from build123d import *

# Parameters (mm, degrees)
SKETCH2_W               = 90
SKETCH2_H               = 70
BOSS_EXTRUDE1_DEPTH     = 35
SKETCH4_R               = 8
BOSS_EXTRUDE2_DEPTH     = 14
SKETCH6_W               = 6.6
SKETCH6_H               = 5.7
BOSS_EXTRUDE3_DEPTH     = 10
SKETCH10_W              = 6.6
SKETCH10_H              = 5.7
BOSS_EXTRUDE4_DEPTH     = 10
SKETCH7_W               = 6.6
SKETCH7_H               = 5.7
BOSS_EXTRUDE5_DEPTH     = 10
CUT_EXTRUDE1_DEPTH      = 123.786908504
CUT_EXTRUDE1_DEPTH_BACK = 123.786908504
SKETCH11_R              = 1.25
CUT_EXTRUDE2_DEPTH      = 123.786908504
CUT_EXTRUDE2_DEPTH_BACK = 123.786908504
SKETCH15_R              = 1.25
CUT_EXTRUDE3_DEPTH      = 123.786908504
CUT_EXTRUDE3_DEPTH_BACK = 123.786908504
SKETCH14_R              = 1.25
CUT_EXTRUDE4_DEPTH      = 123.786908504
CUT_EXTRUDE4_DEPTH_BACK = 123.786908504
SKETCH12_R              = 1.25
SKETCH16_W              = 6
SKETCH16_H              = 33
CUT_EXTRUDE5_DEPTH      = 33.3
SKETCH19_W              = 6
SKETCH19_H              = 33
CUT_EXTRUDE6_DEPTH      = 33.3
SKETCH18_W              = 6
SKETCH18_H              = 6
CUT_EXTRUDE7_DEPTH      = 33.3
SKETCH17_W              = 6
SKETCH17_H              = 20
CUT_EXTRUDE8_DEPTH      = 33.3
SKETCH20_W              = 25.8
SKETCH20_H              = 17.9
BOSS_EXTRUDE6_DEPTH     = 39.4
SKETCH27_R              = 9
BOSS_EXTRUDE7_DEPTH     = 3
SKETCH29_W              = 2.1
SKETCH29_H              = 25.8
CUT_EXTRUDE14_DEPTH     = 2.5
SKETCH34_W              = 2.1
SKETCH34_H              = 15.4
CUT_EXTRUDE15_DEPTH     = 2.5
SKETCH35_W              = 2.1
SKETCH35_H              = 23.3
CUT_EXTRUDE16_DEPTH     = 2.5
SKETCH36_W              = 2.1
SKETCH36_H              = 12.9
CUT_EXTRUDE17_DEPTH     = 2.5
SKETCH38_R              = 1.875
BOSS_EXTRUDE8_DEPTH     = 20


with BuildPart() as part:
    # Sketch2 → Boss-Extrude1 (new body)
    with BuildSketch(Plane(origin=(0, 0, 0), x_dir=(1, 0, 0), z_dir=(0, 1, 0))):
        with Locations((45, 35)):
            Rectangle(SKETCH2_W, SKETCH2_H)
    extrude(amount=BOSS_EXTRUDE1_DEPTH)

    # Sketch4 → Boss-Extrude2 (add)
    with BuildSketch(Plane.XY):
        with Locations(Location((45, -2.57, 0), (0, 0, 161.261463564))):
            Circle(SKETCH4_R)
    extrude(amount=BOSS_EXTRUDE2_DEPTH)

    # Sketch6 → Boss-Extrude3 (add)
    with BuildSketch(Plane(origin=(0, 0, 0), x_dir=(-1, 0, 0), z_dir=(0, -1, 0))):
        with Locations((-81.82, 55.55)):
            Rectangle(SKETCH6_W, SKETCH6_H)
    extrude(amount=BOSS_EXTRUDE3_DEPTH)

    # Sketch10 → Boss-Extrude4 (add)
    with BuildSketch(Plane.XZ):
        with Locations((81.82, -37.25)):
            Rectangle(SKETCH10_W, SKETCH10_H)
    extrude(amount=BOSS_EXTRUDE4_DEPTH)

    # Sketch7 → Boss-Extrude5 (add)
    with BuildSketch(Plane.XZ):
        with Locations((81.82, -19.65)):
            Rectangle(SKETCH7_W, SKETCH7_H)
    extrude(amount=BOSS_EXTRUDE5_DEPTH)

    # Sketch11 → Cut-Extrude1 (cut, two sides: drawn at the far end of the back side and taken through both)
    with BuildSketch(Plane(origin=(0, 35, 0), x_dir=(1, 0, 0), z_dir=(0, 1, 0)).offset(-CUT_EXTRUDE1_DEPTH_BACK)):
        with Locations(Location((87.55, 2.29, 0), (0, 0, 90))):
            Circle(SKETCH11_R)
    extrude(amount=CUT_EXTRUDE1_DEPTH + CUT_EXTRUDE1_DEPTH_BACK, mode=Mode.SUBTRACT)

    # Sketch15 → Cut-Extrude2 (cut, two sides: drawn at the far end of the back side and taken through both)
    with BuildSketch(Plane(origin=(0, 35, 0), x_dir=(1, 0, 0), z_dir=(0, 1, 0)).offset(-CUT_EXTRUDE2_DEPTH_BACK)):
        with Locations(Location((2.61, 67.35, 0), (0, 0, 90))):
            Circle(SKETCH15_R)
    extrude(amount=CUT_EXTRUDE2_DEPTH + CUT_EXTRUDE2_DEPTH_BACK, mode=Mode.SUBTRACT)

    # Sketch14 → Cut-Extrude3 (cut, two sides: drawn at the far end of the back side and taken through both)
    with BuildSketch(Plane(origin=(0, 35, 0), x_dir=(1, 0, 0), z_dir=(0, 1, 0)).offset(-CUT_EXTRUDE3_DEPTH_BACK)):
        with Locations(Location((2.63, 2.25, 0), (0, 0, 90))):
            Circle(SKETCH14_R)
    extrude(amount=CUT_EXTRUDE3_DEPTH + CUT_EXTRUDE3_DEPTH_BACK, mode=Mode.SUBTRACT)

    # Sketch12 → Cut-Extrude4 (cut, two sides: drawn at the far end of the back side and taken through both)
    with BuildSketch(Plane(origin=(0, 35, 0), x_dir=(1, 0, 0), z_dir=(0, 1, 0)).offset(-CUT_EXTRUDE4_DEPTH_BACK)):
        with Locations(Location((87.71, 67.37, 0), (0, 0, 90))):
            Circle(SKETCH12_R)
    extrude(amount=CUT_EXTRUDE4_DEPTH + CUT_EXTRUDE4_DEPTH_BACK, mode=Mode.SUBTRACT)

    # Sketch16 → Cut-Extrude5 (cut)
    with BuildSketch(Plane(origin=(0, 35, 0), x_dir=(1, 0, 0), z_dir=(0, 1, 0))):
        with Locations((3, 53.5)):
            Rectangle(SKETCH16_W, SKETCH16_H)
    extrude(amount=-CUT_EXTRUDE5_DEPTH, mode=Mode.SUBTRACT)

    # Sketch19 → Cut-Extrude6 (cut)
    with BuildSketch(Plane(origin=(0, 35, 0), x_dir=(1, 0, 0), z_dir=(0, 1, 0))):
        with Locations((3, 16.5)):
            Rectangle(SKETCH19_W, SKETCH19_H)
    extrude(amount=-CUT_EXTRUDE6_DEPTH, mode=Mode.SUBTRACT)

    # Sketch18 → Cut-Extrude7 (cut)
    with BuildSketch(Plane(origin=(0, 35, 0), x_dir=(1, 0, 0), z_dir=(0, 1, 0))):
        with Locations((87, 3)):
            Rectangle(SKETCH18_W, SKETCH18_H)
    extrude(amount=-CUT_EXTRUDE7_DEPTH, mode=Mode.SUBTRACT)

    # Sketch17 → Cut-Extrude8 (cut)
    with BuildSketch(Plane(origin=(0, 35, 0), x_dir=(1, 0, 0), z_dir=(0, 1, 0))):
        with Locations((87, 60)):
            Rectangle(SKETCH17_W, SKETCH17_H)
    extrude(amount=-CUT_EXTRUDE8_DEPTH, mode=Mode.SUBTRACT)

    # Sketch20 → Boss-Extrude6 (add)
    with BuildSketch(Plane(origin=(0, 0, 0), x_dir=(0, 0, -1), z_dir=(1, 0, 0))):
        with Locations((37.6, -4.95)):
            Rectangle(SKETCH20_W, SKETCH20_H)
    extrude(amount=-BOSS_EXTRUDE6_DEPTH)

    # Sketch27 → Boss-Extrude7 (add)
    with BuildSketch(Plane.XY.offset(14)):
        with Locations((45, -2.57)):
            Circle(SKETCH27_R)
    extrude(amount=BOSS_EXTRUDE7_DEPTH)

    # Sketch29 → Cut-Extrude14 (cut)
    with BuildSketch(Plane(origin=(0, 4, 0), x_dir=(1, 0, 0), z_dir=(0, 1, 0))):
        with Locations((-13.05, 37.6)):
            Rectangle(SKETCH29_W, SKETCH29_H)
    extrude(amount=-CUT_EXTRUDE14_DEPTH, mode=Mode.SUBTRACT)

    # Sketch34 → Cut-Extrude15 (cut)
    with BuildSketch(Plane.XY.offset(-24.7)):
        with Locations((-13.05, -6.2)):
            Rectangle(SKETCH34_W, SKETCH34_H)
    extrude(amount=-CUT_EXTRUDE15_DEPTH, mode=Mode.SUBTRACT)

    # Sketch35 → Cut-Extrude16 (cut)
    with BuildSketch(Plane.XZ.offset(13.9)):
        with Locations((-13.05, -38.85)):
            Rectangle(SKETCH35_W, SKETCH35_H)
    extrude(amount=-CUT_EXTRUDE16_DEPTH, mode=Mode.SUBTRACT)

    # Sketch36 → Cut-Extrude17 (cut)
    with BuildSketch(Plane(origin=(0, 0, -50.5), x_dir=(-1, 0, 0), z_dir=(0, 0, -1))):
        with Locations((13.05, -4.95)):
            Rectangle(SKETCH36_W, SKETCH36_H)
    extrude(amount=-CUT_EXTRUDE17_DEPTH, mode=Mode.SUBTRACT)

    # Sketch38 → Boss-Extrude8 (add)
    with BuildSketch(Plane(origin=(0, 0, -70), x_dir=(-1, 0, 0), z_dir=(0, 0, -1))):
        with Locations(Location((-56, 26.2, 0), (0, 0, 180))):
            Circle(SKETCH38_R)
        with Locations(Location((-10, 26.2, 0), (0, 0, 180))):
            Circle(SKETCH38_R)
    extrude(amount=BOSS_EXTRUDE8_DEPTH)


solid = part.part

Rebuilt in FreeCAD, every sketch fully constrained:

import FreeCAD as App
import Part
import Sketcher


def add_polygon(sketch, points):
    """Adds a closed chain of lines whose ends are joined by coincident constraints."""
    first, n = sketch.GeometryCount, len(points)
    for a, b in zip(points, points[1:] + points[:1]):
        sketch.addGeometry(Part.LineSegment(App.Vector(*a, 0), App.Vector(*b, 0)), False)
    for i in range(n):
        sketch.addConstraint(Sketcher.Constraint("Coincident", first + i, 2, first + (i + 1) % n, 1))

doc = App.newDocument("Part")
body = doc.addObject("PartDesign::Body", "Body")

# Sketch on XZ plane
sketch1 = body.newObject("Sketcher::SketchObject", "Sketch")
sketch1.AttachmentSupport = (doc.getObject("XZ_Plane"), [""])
sketch1.MapMode = "FlatFace"
add_polygon(sketch1, [(0, -70), (0, 0), (90, 0), (90, -70)])  # lines 0-3
sketch1.addConstraint([
    Sketcher.Constraint("Vertical", 0),
    Sketcher.Constraint("Horizontal", 1),
    Sketcher.Constraint("Vertical", 2),
    Sketcher.Constraint("Horizontal", 3),
    Sketcher.Constraint("Coincident", 0, 2, -1, 1),
    Sketcher.Constraint("DistanceX", 1, 1, 1, 2, 90.0),
    Sketcher.Constraint("DistanceY", 0, 1, 0, 2, 70.0),
])
pad1 = body.newObject("PartDesign::Pad", "Pad")
pad1.Profile = sketch1
pad1.Length = 35
pad1.Reversed = True

# Sketch on XY plane
sketch2 = body.newObject("Sketcher::SketchObject", "Sketch001")
sketch2.AttachmentSupport = (doc.getObject("XY_Plane"), [""])
sketch2.MapMode = "FlatFace"
sketch2.addGeometry(Part.Circle(App.Vector(45, -3, 0), App.Vector(0, 0, 1), 8), False)
sketch2.addConstraint([
    Sketcher.Constraint("Diameter", 0, 16.0),
    Sketcher.Constraint("DistanceX", -1, 1, 0, 3, 45.0),
    Sketcher.Constraint("DistanceY", 0, 3, -1, 1, 2.57),
])
pad2 = body.newObject("PartDesign::Pad", "Pad001")
pad2.Profile = sketch2
pad2.Length = 14

# Sketch on XZ plane
sketch3 = body.newObject("Sketcher::SketchObject", "Sketch002")
sketch3.AttachmentSupport = (doc.getObject("XZ_Plane"), [""])
sketch3.MapMode = "FlatFace"
add_polygon(sketch3, [(85, -58), (85, -53), (79, -53), (79, -58)])  # lines 0-3
sketch3.addConstraint([
    Sketcher.Constraint("Vertical", 0),
    Sketcher.Constraint("Horizontal", 1),
    Sketcher.Constraint("Vertical", 2),
    Sketcher.Constraint("Horizontal", 3),
    Sketcher.Constraint("DistanceX", 1, 2, 1, 1, 6.6),
    Sketcher.Constraint("DistanceY", 0, 1, 0, 2, 5.7),
    Sketcher.Constraint("DistanceY", 0, 2, -1, 1, 52.7),
    Sketcher.Constraint("DistanceX", -1, 1, 0, 2, 85.12),
])
pad3 = body.newObject("PartDesign::Pad", "Pad002")
pad3.Profile = sketch3
pad3.Length = 10

# Sketch on XZ plane
sketch4 = body.newObject("Sketcher::SketchObject", "Sketch003")
sketch4.AttachmentSupport = (doc.getObject("XZ_Plane"), [""])
sketch4.MapMode = "FlatFace"
add_polygon(sketch4, [(79, -34), (79, -40), (85, -40), (85, -34)])  # lines 0-3
sketch4.addConstraint([
    Sketcher.Constraint("Vertical", 0),
    Sketcher.Constraint("Horizontal", 1),
    Sketcher.Constraint("Vertical", 2),
    Sketcher.Constraint("Horizontal", 3),
    Sketcher.Constraint("DistanceX", 1, 1, 1, 2, 6.6),
    Sketcher.Constraint("DistanceY", 0, 2, 0, 1, 5.7),
    Sketcher.Constraint("DistanceY", 0, 2, -1, 1, 40.1),
    Sketcher.Constraint("DistanceX", -1, 1, 0, 2, 78.52),
])
pad4 = body.newObject("PartDesign::Pad", "Pad003")
pad4.Profile = sketch4
pad4.Length = 10

# Sketch on XZ plane
sketch5 = body.newObject("Sketcher::SketchObject", "Sketch004")
sketch5.AttachmentSupport = (doc.getObject("XZ_Plane"), [""])
sketch5.MapMode = "FlatFace"
add_polygon(sketch5, [(79, -17), (79, -22), (85, -22), (85, -17)])  # lines 0-3
sketch5.addConstraint([
    Sketcher.Constraint("Vertical", 0),
    Sketcher.Constraint("Horizontal", 1),
    Sketcher.Constraint("Vertical", 2),
    Sketcher.Constraint("Horizontal", 3),
    Sketcher.Constraint("DistanceX", 1, 1, 1, 2, 6.6),
    Sketcher.Constraint("DistanceY", 0, 2, 0, 1, 5.7),
    Sketcher.Constraint("DistanceY", 0, 2, -1, 1, 22.5),
    Sketcher.Constraint("DistanceX", -1, 1, 0, 2, 78.52),
])
pad5 = body.newObject("PartDesign::Pad", "Pad004")
pad5.Profile = sketch5
pad5.Length = 10

# Sketch on XZ plane
sketch6 = body.newObject("Sketcher::SketchObject", "Sketch005")
sketch6.AttachmentSupport = (doc.getObject("XZ_Plane"), [""])
sketch6.MapMode = "FlatFace"
sketch6.AttachmentOffset = App.Placement(App.Vector(0, 0, -35), App.Rotation())
sketch6.addGeometry(Part.Circle(App.Vector(87.5, -2.3, 0), App.Vector(0, 0, 1), 1.2), False)
sketch6.addConstraint([
    Sketcher.Constraint("Diameter", 0, 2.5),
    Sketcher.Constraint("DistanceX", -1, 1, 0, 3, 87.55),
    Sketcher.Constraint("DistanceY", 0, 3, -1, 1, 2.29),
])
pocket1 = body.newObject("PartDesign::Pocket", "Pocket")
pocket1.Profile = sketch6
pocket1.Type = "ThroughAll"
pocket1.Midplane = True

# Sketch on XZ plane
sketch7 = body.newObject("Sketcher::SketchObject", "Sketch006")
sketch7.AttachmentSupport = (doc.getObject("XZ_Plane"), [""])
sketch7.MapMode = "FlatFace"
sketch7.AttachmentOffset = App.Placement(App.Vector(0, 0, -35), App.Rotation())
sketch7.addGeometry(Part.Circle(App.Vector(2.6, -67.3, 0), App.Vector(0, 0, 1), 1.2), False)
sketch7.addConstraint([
    Sketcher.Constraint("Diameter", 0, 2.5),
    Sketcher.Constraint("DistanceX", -1, 1, 0, 3, 2.61),
    Sketcher.Constraint("DistanceY", 0, 3, -1, 1, 67.35),
])
pocket2 = body.newObject("PartDesign::Pocket", "Pocket001")
pocket2.Profile = sketch7
pocket2.Type = "ThroughAll"
pocket2.Midplane = True

# Sketch on XZ plane
sketch8 = body.newObject("Sketcher::SketchObject", "Sketch007")
sketch8.AttachmentSupport = (doc.getObject("XZ_Plane"), [""])
sketch8.MapMode = "FlatFace"
sketch8.AttachmentOffset = App.Placement(App.Vector(0, 0, -35), App.Rotation())
sketch8.addGeometry(Part.Circle(App.Vector(2.6, -2.2, 0), App.Vector(0, 0, 1), 1.2), False)
sketch8.addConstraint([
    Sketcher.Constraint("Diameter", 0, 2.5),
    Sketcher.Constraint("DistanceX", -1, 1, 0, 3, 2.63),
    Sketcher.Constraint("DistanceY", 0, 3, -1, 1, 2.25),
])
pocket3 = body.newObject("PartDesign::Pocket", "Pocket002")
pocket3.Profile = sketch8
pocket3.Type = "ThroughAll"
pocket3.Midplane = True

# Sketch on XZ plane
sketch9 = body.newObject("Sketcher::SketchObject", "Sketch008")
sketch9.AttachmentSupport = (doc.getObject("XZ_Plane"), [""])
sketch9.MapMode = "FlatFace"
sketch9.AttachmentOffset = App.Placement(App.Vector(0, 0, -35), App.Rotation())
sketch9.addGeometry(Part.Circle(App.Vector(87.7, -67.4, 0), App.Vector(0, 0, 1), 1.2), False)
sketch9.addConstraint([
    Sketcher.Constraint("Diameter", 0, 2.5),
    Sketcher.Constraint("DistanceX", -1, 1, 0, 3, 87.71),
    Sketcher.Constraint("DistanceY", 0, 3, -1, 1, 67.37),
])
pocket4 = body.newObject("PartDesign::Pocket", "Pocket003")
pocket4.Profile = sketch9
pocket4.Type = "ThroughAll"
pocket4.Midplane = True

# Sketch on XZ plane
sketch10 = body.newObject("Sketcher::SketchObject", "Sketch009")
sketch10.AttachmentSupport = (doc.getObject("XZ_Plane"), [""])
sketch10.MapMode = "FlatFace"
sketch10.AttachmentOffset = App.Placement(App.Vector(0, 0, -35), App.Rotation())
add_polygon(sketch10, [(0, -70), (0, -37), (6, -37), (6, -70)])  # lines 0-3
sketch10.addConstraint([
    Sketcher.Constraint("Vertical", 0),
    Sketcher.Constraint("Horizontal", 1),
    Sketcher.Constraint("Vertical", 2),
    Sketcher.Constraint("Horizontal", 3),
    Sketcher.Constraint("PointOnObject", 0, 2, -2),
    Sketcher.Constraint("DistanceX", 1, 1, 1, 2, 6.0),
    Sketcher.Constraint("DistanceY", 0, 1, 0, 2, 33.0),
    Sketcher.Constraint("DistanceY", 0, 2, -1, 1, 37.0),
])
pocket5 = body.newObject("PartDesign::Pocket", "Pocket004")
pocket5.Profile = sketch10
pocket5.Length = 33.3
pocket5.Reversed = True

# Sketch on XZ plane
sketch11 = body.newObject("Sketcher::SketchObject", "Sketch010")
sketch11.AttachmentSupport = (doc.getObject("XZ_Plane"), [""])
sketch11.MapMode = "FlatFace"
sketch11.AttachmentOffset = App.Placement(App.Vector(0, 0, -35), App.Rotation())
add_polygon(sketch11, [(0, -33), (0, 0), (6, 0), (6, -33)])  # lines 0-3
sketch11.addConstraint([
    Sketcher.Constraint("Vertical", 0),
    Sketcher.Constraint("Horizontal", 1),
    Sketcher.Constraint("Vertical", 2),
    Sketcher.Constraint("Horizontal", 3),
    Sketcher.Constraint("Coincident", 0, 2, -1, 1),
    Sketcher.Constraint("DistanceX", 1, 1, 1, 2, 6.0),
    Sketcher.Constraint("DistanceY", 0, 1, 0, 2, 33.0),
])
pocket6 = body.newObject("PartDesign::Pocket", "Pocket005")
pocket6.Profile = sketch11
pocket6.Length = 33.3
pocket6.Reversed = True

# Sketch on XZ plane
sketch12 = body.newObject("Sketcher::SketchObject", "Sketch011")
sketch12.AttachmentSupport = (doc.getObject("XZ_Plane"), [""])
sketch12.MapMode = "FlatFace"
sketch12.AttachmentOffset = App.Placement(App.Vector(0, 0, -35), App.Rotation())
add_polygon(sketch12, [(84, -6), (84, 0), (90, 0), (90, -6)])  # lines 0-3
sketch12.addConstraint([
    Sketcher.Constraint("Vertical", 0),
    Sketcher.Constraint("Horizontal", 1),
    Sketcher.Constraint("Vertical", 2),
    Sketcher.Constraint("Horizontal", 3),
    Sketcher.Constraint("PointOnObject", 0, 2, -1),
    Sketcher.Constraint("Equal", 3, 0),
    Sketcher.Constraint("DistanceX", 1, 1, 1, 2, 6.0),
    Sketcher.Constraint("DistanceX", -1, 1, 0, 2, 84.0),
])
pocket7 = body.newObject("PartDesign::Pocket", "Pocket006")
pocket7.Profile = sketch12
pocket7.Length = 33.3
pocket7.Reversed = True

# Sketch on XZ plane
sketch13 = body.newObject("Sketcher::SketchObject", "Sketch012")
sketch13.AttachmentSupport = (doc.getObject("XZ_Plane"), [""])
sketch13.MapMode = "FlatFace"
sketch13.AttachmentOffset = App.Placement(App.Vector(0, 0, -35), App.Rotation())
add_polygon(sketch13, [(84, -70), (84, -50), (90, -50), (90, -70)])  # lines 0-3
sketch13.addConstraint([
    Sketcher.Constraint("Vertical", 0),
    Sketcher.Constraint("Horizontal", 1),
    Sketcher.Constraint("Vertical", 2),
    Sketcher.Constraint("Horizontal", 3),
    Sketcher.Constraint("DistanceX", 1, 1, 1, 2, 6.0),
    Sketcher.Constraint("DistanceY", 0, 1, 0, 2, 20.0),
    Sketcher.Constraint("DistanceX", -1, 1, 0, 2, 84.0),
    Sketcher.Constraint("DistanceY", 0, 2, -1, 1, 50.0),
])
pocket8 = body.newObject("PartDesign::Pocket", "Pocket007")
pocket8.Profile = sketch13
pocket8.Length = 33.3
pocket8.Reversed = True

# Sketch on YZ plane
sketch14 = body.newObject("Sketcher::SketchObject", "Sketch013")
sketch14.AttachmentSupport = (doc.getObject("YZ_Plane"), [""])
sketch14.MapMode = "FlatFace"
add_polygon(sketch14, [(4, -25), (-14, -25), (-14, -50), (4, -50)])  # lines 0-3
sketch14.addConstraint([
    Sketcher.Constraint("Horizontal", 0),
    Sketcher.Constraint("Vertical", 1),
    Sketcher.Constraint("Horizontal", 2),
    Sketcher.Constraint("Vertical", 3),
    Sketcher.Constraint("DistanceX", 0, 2, 0, 1, 17.9),
    Sketcher.Constraint("DistanceY", 1, 2, 1, 1, 25.8),
    Sketcher.Constraint("DistanceX", -1, 1, 2, 2, 4.0),
    Sketcher.Constraint("DistanceY", 0, 2, -1, 1, 24.7),
])
pad6 = body.newObject("PartDesign::Pad", "Pad005")
pad6.Profile = sketch14
pad6.Length = 39.4
pad6.Reversed = True

# Sketch on XY plane
sketch15 = body.newObject("Sketcher::SketchObject", "Sketch014")
sketch15.AttachmentSupport = (doc.getObject("XY_Plane"), [""])
sketch15.MapMode = "FlatFace"
sketch15.AttachmentOffset = App.Placement(App.Vector(0, 0, 14), App.Rotation())
sketch15.addGeometry(Part.Circle(App.Vector(45, -3, 0), App.Vector(0, 0, 1), 9), False)
sketch15.addConstraint([
    Sketcher.Constraint("Diameter", 0, 18.0),
    Sketcher.Constraint("DistanceX", -1, 1, 0, 3, 45.0),
    Sketcher.Constraint("DistanceY", 0, 3, -1, 1, 2.57),
])
pad7 = body.newObject("PartDesign::Pad", "Pad006")
pad7.Profile = sketch15
pad7.Length = 3

# Sketch on XZ plane
sketch16 = body.newObject("Sketcher::SketchObject", "Sketch015")
sketch16.AttachmentSupport = (doc.getObject("XZ_Plane"), [""])
sketch16.MapMode = "FlatFace"
sketch16.AttachmentOffset = App.Placement(App.Vector(0, 0, -4), App.Rotation())
add_polygon(sketch16, [(-14.1, -50.5), (-14.1, -24.7), (-12, -24.7), (-12, -50.5)])  # lines 0-3
sketch16.addConstraint([
    Sketcher.Constraint("Vertical", 0),
    Sketcher.Constraint("Horizontal", 1),
    Sketcher.Constraint("Vertical", 2),
    Sketcher.Constraint("Horizontal", 3),
    Sketcher.Constraint("DistanceX", 1, 1, 1, 2, 2.1),
    Sketcher.Constraint("DistanceY", 0, 1, 0, 2, 25.8),
    Sketcher.Constraint("DistanceX", 1, 2, -1, 1, 12.0),
    Sketcher.Constraint("DistanceY", 0, 2, -1, 1, 24.7),
])
pocket9 = body.newObject("PartDesign::Pocket", "Pocket008")
pocket9.Profile = sketch16
pocket9.Length = 2.5
pocket9.Reversed = True

# Sketch on XY plane
sketch17 = body.newObject("Sketcher::SketchObject", "Sketch016")
sketch17.AttachmentSupport = (doc.getObject("XY_Plane"), [""])
sketch17.MapMode = "FlatFace"
sketch17.AttachmentOffset = App.Placement(App.Vector(0, 0, -24.7), App.Rotation())
add_polygon(sketch17, [(-14.1, 1.5), (-14.1, -13.9), (-12, -13.9), (-12, 1.5)])  # lines 0-3
sketch17.addConstraint([
    Sketcher.Constraint("Vertical", 0),
    Sketcher.Constraint("Horizontal", 1),
    Sketcher.Constraint("Vertical", 2),
    Sketcher.Constraint("Horizontal", 3),
    Sketcher.Constraint("DistanceX", 1, 1, 1, 2, 2.1),
    Sketcher.Constraint("DistanceY", 0, 2, 0, 1, 15.4),
    Sketcher.Constraint("DistanceX", 1, 2, -1, 1, 12.0),
    Sketcher.Constraint("DistanceY", 0, 2, -1, 1, 13.9),
])
pocket10 = body.newObject("PartDesign::Pocket", "Pocket009")
pocket10.Profile = sketch17
pocket10.Length = 2.5

# Sketch on XZ plane
sketch18 = body.newObject("Sketcher::SketchObject", "Sketch017")
sketch18.AttachmentSupport = (doc.getObject("XZ_Plane"), [""])
sketch18.MapMode = "FlatFace"
sketch18.AttachmentOffset = App.Placement(App.Vector(0, 0, 13.9), App.Rotation())
add_polygon(sketch18, [(-14.1, -27.2), (-14.1, -50.5), (-12, -50.5), (-12, -27.2)])  # lines 0-3
sketch18.addConstraint([
    Sketcher.Constraint("Vertical", 0),
    Sketcher.Constraint("Horizontal", 1),
    Sketcher.Constraint("Vertical", 2),
    Sketcher.Constraint("Horizontal", 3),
    Sketcher.Constraint("DistanceX", 1, 1, 1, 2, 2.1),
    Sketcher.Constraint("DistanceY", 0, 2, 0, 1, 23.3),
    Sketcher.Constraint("DistanceX", 1, 2, -1, 1, 12.0),
    Sketcher.Constraint("DistanceY", 0, 2, -1, 1, 50.5),
])
pocket11 = body.newObject("PartDesign::Pocket", "Pocket010")
pocket11.Profile = sketch18
pocket11.Length = 2.5

# Sketch on XY plane
sketch19 = body.newObject("Sketcher::SketchObject", "Sketch018")
sketch19.AttachmentSupport = (doc.getObject("XY_Plane"), [""])
sketch19.MapMode = "FlatFace"
sketch19.AttachmentOffset = App.Placement(App.Vector(0, 0, -50.5), App.Rotation())
add_polygon(sketch19, [(-12, 1.5), (-12, -11.4), (-14.1, -11.4), (-14.1, 1.5)])  # lines 0-3
sketch19.addConstraint([
    Sketcher.Constraint("Vertical", 0),
    Sketcher.Constraint("Horizontal", 1),
    Sketcher.Constraint("Vertical", 2),
    Sketcher.Constraint("Horizontal", 3),
    Sketcher.Constraint("DistanceX", 1, 2, 1, 1, 2.1),
    Sketcher.Constraint("DistanceY", 0, 2, 0, 1, 12.9),
    Sketcher.Constraint("DistanceX", 0, 2, -1, 1, 12.0),
    Sketcher.Constraint("DistanceY", 0, 2, -1, 1, 11.4),
])
pocket12 = body.newObject("PartDesign::Pocket", "Pocket011")
pocket12.Profile = sketch19
pocket12.Length = 2.5
pocket12.Reversed = True

# Sketch on XY plane
sketch20 = body.newObject("Sketcher::SketchObject", "Sketch019")
sketch20.AttachmentSupport = (doc.getObject("XY_Plane"), [""])
sketch20.MapMode = "FlatFace"
sketch20.AttachmentOffset = App.Placement(App.Vector(0, 0, -70), App.Rotation())
sketch20.addGeometry([
    Part.Circle(App.Vector(56, 26.2, 0), App.Vector(0, 0, 1), 1.9),
    Part.Circle(App.Vector(10, 26.2, 0), App.Vector(0, 0, 1), 1.9),
], False)
sketch20.addConstraint([
    Sketcher.Constraint("Equal", 0, 1),
    Sketcher.Constraint("Horizontal", 0, 3, 1, 3),
    Sketcher.Constraint("Diameter", 0, 3.75),
    Sketcher.Constraint("DistanceX", -1, 1, 0, 3, 56.0),
    Sketcher.Constraint("DistanceX", -1, 1, 1, 3, 10.0),
    Sketcher.Constraint("DistanceY", -1, 1, 0, 3, 26.2),
])
pad8 = body.newObject("PartDesign::Pad", "Pad007")
pad8.Profile = sketch20
pad8.Length = 20
pad8.Reversed = True

doc.recompute()
